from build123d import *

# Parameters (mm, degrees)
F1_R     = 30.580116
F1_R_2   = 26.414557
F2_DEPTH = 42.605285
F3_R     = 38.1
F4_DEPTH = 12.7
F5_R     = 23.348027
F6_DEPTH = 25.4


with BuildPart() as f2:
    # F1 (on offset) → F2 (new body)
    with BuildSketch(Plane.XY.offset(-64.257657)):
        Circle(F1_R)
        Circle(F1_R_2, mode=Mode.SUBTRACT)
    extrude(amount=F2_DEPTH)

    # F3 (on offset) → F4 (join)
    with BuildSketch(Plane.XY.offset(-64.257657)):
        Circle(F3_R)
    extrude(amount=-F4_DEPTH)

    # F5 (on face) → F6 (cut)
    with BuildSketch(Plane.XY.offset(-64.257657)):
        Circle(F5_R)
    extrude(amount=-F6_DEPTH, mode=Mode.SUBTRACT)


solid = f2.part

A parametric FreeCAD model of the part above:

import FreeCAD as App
import Part
import Sketcher
from FreeCAD import Vector
Q = App.Units.Quantity

doc = App.newDocument("Part")
body = doc.addObject("PartDesign::Body", "Body")

sketch1 = doc.addObject("Sketcher::SketchObject", "Sketch")
body.addObject(sketch1)
sketch1.AttachmentSupport = (doc.XY_Plane, [""])
sketch1.MapMode = "FlatFace"
sketch1.AttachmentOffset = App.Placement(Vector(0, 0, -64.257657), App.Rotation())
sketch1.addGeometry([
    Part.Circle(Vector(0, 0, 0), Vector(0, 0, 1), 31),
    Part.Circle(Vector(0, 0, 0), Vector(0, 0, 1), 26),
], False)
sketch1.addConstraint([
    Sketcher.Constraint("Coincident", 0, 3, -1, 1),
    Sketcher.Constraint("Coincident", 1, 3, -1, 1),
    Sketcher.Constraint("Diameter", 0, Q("61.160232 mm")),
    Sketcher.Constraint("Diameter", 1, Q("52.829114 mm")),
])
pad1 = doc.addObject("PartDesign::Pad", "Pad")
body.addObject(pad1)
pad1.Profile = sketch1
pad1.Length = 42.605285

sketch2 = doc.addObject("Sketcher::SketchObject", "Sketch001")
body.addObject(sketch2)
sketch2.AttachmentSupport = (doc.XY_Plane, [""])
sketch2.MapMode = "FlatFace"
sketch2.AttachmentOffset = App.Placement(Vector(0, 0, -64.257657), App.Rotation())
sketch2.addGeometry(Part.Circle(Vector(0, 0, 0), Vector(0, 0, 1), 38), False)
sketch2.addConstraint([
    Sketcher.Constraint("Coincident", 0, 3, -1, 1),
    Sketcher.Constraint("Diameter", 0, Q("3 in")),
])
pad2 = doc.addObject("PartDesign::Pad", "Pad001")
body.addObject(pad2)
pad2.Profile = sketch2
pad2.Length = Q("0.5 in")
pad2.Reversed = True

sketch3 = doc.addObject("Sketcher::SketchObject", "Sketch002")
body.addObject(sketch3)
sketch3.AttachmentSupport = (doc.XY_Plane, [""])
sketch3.MapMode = "FlatFace"
sketch3.AttachmentOffset = App.Placement(Vector(0, 0, -64.257657), App.Rotation())
sketch3.addGeometry(Part.Circle(Vector(0, 0, 0), Vector(0, 0, 1), 23), False)
sketch3.addConstraint([
    Sketcher.Constraint("Coincident", 0, 3, -1, 1),
    Sketcher.Constraint("Diameter", 0, Q("46.696054 mm")),
])
pocket1 = doc.addObject("PartDesign::Pocket", "Pocket")
body.addObject(pocket1)
pocket1.Profile = sketch3
pocket1.Length = Q("1 in")

doc.recompute()
